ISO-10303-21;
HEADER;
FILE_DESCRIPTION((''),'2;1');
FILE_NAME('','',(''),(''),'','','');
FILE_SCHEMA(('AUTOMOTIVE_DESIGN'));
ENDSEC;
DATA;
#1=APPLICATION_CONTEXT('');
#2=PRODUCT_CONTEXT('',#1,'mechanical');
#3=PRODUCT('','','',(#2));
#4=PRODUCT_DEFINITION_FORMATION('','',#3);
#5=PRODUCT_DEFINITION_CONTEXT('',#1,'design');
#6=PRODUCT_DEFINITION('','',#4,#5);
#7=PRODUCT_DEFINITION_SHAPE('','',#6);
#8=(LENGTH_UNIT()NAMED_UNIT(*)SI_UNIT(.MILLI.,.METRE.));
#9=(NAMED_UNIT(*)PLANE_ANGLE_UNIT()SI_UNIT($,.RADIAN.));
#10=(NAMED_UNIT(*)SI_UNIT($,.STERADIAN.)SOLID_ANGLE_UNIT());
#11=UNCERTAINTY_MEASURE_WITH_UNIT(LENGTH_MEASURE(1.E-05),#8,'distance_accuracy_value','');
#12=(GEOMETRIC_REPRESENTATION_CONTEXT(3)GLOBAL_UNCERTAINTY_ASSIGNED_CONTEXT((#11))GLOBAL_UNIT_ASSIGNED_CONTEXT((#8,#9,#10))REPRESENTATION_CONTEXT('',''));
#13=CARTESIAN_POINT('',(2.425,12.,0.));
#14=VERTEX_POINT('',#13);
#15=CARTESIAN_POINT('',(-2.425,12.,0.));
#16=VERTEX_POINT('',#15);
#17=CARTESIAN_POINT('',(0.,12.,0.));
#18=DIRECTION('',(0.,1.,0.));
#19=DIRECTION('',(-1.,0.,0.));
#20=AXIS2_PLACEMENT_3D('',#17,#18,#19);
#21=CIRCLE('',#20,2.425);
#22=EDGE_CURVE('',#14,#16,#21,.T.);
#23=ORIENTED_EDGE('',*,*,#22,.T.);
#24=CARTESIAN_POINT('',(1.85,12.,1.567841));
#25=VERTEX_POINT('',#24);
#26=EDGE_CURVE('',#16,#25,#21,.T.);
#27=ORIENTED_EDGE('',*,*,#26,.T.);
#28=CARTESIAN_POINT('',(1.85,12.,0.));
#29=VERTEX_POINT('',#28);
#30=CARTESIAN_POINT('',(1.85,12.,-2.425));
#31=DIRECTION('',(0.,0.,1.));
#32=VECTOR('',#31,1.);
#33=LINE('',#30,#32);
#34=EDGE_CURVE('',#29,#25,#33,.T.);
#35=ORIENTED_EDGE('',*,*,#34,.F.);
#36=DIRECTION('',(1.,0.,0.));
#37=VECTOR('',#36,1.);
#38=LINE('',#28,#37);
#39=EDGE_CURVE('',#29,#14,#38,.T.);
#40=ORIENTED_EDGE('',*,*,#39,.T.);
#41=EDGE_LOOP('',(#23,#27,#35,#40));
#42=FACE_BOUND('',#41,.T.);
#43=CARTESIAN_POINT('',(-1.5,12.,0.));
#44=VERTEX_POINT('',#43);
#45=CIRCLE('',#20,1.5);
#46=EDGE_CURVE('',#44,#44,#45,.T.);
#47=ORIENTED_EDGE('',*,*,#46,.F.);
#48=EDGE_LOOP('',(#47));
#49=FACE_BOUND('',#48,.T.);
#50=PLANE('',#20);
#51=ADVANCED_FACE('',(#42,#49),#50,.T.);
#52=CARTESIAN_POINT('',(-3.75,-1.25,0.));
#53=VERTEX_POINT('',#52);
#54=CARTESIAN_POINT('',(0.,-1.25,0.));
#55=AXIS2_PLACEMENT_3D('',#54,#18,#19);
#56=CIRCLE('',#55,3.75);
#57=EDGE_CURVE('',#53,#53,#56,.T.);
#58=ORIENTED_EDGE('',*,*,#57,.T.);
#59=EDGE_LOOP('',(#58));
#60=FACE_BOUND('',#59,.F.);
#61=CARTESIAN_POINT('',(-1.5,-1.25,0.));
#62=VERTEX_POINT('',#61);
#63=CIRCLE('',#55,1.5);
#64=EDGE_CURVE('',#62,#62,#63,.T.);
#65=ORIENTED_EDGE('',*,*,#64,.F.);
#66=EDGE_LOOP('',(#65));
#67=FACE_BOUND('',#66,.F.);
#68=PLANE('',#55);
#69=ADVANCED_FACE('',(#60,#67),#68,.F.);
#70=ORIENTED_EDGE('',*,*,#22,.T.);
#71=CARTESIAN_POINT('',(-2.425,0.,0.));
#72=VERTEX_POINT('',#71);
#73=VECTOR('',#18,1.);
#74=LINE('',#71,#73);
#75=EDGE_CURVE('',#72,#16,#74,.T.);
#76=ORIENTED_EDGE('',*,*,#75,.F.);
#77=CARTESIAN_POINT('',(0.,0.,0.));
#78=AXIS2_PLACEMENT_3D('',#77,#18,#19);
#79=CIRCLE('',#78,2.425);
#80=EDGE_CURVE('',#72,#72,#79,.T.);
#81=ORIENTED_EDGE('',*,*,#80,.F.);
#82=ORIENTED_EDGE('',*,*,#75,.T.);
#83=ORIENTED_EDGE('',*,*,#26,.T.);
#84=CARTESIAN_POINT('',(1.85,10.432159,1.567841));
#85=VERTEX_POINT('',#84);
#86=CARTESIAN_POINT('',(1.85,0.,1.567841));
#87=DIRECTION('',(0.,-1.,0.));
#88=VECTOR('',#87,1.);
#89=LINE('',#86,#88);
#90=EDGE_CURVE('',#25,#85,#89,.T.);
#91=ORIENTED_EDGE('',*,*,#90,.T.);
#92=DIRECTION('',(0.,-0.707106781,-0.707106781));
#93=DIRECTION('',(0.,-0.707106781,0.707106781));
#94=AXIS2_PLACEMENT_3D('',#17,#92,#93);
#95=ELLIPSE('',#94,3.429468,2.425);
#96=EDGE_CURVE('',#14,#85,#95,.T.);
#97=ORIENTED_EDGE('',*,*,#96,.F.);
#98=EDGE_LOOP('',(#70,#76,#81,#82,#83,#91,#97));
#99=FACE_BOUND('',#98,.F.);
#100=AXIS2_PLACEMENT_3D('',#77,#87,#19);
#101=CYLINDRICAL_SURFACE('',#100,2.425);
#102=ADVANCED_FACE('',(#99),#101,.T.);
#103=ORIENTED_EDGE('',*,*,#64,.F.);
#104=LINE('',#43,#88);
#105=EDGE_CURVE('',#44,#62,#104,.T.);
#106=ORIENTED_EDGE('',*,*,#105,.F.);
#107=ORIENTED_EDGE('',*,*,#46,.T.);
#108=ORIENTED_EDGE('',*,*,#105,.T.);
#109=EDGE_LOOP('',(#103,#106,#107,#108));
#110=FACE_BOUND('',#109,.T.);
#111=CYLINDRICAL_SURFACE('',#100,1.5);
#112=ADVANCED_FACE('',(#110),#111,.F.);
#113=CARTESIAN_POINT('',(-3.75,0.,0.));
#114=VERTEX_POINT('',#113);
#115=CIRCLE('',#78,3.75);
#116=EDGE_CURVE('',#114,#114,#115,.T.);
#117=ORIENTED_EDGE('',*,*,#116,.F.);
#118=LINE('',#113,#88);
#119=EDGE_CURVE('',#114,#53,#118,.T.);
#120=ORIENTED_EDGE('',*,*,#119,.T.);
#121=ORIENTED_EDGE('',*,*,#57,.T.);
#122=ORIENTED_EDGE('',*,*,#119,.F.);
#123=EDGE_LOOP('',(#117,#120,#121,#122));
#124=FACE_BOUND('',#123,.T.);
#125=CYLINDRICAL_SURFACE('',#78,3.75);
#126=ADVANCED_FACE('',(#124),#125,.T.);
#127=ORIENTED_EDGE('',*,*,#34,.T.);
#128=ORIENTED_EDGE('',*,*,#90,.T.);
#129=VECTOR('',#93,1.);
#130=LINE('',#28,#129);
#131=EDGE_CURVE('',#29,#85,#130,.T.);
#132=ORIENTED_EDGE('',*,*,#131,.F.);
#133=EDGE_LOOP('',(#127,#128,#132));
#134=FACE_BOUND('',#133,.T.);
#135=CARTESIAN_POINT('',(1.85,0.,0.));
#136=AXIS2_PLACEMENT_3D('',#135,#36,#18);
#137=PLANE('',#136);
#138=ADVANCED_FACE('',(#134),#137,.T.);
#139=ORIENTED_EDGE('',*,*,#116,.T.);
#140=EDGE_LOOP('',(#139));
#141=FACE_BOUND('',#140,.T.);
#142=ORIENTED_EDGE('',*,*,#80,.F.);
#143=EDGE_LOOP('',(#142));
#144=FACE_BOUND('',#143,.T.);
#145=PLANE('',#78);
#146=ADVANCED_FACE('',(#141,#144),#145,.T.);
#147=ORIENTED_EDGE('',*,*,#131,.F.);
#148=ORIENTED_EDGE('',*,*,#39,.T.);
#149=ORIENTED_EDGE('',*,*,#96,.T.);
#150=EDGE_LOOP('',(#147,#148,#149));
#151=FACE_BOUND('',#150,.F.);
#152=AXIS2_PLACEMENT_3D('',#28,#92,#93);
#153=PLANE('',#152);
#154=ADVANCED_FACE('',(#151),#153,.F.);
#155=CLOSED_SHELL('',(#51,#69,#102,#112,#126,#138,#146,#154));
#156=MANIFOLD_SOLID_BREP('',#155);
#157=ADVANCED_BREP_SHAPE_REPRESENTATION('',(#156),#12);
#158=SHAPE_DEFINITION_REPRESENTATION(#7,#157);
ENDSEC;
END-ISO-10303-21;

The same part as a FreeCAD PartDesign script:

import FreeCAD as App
import Part
import Sketcher

V = App.Vector
Q = App.Units.Quantity


def add_polygon(sketch, points):
    """Adds a closed chain of lines whose ends are joined by coincident constraints."""
    first, n = sketch.GeometryCount, len(points)
    for a, b in zip(points, points[1:] + points[:1]):
        sketch.addGeometry(Part.LineSegment(App.Vector(*a, 0), App.Vector(*b, 0)), False)
    for i in range(n):
        sketch.addConstraint(Sketcher.Constraint("Coincident", first + i, 2, first + (i + 1) % n, 1))

doc = App.newDocument("Part")
body = doc.addObject("PartDesign::Body", "Body")

# Sketch on XZ plane
sketch1 = body.newObject("Sketcher::SketchObject", "Sketch")
sketch1.AttachmentSupport = (doc.getObject("XZ_Plane"), [""])
sketch1.MapMode = "FlatFace"
sketch1.addGeometry(Part.Circle(V(0, 0, 0), V(0, 0, 1), 2.4), False)
sketch1.addGeometry(Part.Circle(V(0, 0, 0), V(0, 0, 1), 1.5), False)
sketch1.addConstraint(Sketcher.Constraint("Coincident", 0, 3, -1, 1))
sketch1.addConstraint(Sketcher.Constraint("Coincident", 1, 3, -1, 1))
sketch1.addConstraint(Sketcher.Constraint("Diameter", 1, Q("3 mm")))
sketch1.addConstraint(Sketcher.Constraint("Diameter", 0, Q("4.85 mm")))
pad1 = body.newObject("PartDesign::Pad", "Pad")
pad1.Profile = sketch1
pad1.Length = 12
pad1.Reversed = True

# Sketch on XZ plane
sketch2 = body.newObject("Sketcher::SketchObject", "Sketch001")
sketch2.AttachmentSupport = (doc.getObject("XZ_Plane"), [""])
sketch2.MapMode = "FlatFace"
sketch2.addGeometry(Part.Circle(V(0, 0, 0), V(0, 0, 1), 3.8), False)
sketch2.addGeometry(Part.Circle(V(0, 0, 0), V(0, 0, 1), 1.5), False)
sketch2.addConstraint(Sketcher.Constraint("Coincident", 0, 3, -1, 1))
sketch2.addConstraint(Sketcher.Constraint("Coincident", 1, 3, -1, 1))
sketch2.addConstraint(Sketcher.Constraint("Diameter", 1, Q("3 mm")))
sketch2.addConstraint(Sketcher.Constraint("Diameter", 0, Q("7.5 mm")))
pad2 = body.newObject("PartDesign::Pad", "Pad001")
pad2.Profile = sketch2
pad2.Length = 1.25

# Sketch on YZ plane
sketch3 = body.newObject("Sketcher::SketchObject", "Sketch002")
sketch3.AttachmentSupport = (doc.getObject("YZ_Plane"), [""])
sketch3.MapMode = "FlatFace"
sketch3.AttachmentOffset = App.Placement(V(0, 0, 1.85), App.Rotation())
add_polygon(sketch3, [(9.6, 2.4), (12, 0), (12, 2.4)])  # lines 0-2
sketch3.addConstraint(Sketcher.Constraint("Vertical", 1))
sketch3.addConstraint(Sketcher.Constraint("Horizontal", 2))
sketch3.addConstraint(Sketcher.Constraint("PointOnObject", 0, 2, -1))
sketch3.addConstraint(Sketcher.Constraint("Equal", 2, 1))
sketch3.addConstraint(Sketcher.Constraint("DistanceX", -1, 1, 0, 2, Q("12 mm")))
sketch3.addConstraint(Sketcher.Constraint("DistanceX", 2, 2, 2, 1, Q("2.425 mm")))
pocket1 = body.newObject("PartDesign::Pocket", "Pocket")
pocket1.Profile = sketch3
pocket1.Length = 10
pocket1.Reversed = True

doc.recompute()
